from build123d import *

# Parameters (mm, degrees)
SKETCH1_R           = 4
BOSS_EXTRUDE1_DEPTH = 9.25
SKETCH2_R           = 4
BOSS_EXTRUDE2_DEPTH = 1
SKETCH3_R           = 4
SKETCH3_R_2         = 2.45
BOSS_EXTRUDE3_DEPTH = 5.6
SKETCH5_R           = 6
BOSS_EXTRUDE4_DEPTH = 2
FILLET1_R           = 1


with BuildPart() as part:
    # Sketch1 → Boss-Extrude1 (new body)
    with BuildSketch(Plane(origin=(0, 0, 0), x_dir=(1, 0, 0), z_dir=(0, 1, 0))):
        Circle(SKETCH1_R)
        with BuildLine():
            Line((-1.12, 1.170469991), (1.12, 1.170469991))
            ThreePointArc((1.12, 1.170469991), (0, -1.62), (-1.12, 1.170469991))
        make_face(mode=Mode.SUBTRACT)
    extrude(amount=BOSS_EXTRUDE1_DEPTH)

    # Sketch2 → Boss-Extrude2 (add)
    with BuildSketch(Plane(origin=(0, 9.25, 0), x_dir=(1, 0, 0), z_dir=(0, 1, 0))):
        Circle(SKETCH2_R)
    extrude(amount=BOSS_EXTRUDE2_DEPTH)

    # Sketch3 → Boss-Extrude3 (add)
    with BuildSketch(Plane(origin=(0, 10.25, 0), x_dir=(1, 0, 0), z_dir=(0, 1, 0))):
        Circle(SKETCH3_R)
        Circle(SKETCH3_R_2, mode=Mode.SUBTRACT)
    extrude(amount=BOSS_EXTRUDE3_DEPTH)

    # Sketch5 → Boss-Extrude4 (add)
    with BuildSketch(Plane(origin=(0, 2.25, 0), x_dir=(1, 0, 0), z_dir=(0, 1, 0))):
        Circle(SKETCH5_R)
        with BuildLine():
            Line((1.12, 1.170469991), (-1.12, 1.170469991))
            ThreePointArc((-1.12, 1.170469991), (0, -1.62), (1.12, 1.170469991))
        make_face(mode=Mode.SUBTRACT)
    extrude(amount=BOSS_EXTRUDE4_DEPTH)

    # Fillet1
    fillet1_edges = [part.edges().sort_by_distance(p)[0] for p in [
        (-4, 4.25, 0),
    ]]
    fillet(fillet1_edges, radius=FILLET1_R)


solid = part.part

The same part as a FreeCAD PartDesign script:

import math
import FreeCAD as App
import Part
import Sketcher

V = App.Vector
Q = App.Units.Quantity


def edges_at(feature, points):
    """Names of the edges that pass closest to the given points."""
    edges = feature.Shape.Edges
    near = lambda p: min(range(len(edges)), key=lambda i: edges[i].distToShape(Part.Vertex(*p))[0])
    return sorted({f"Edge{near(p) + 1}" for p in points})

doc = App.newDocument("Part")
params = doc.addObject("Spreadsheet::Sheet", "Params")
for row, (alias, value) in enumerate([
    ("sketch1_diameter", "8 mm"),
    ("sketch1_radius", "1.62 mm"),
    ("sketch1_width", "2.24 mm"),
    ("pad1_length", "9.25 mm"),
    ("sketch2_diameter", "8 mm"),
    ("pad2_length", "1 mm"),
    ("sketch3_diameter", "8 mm"),
    ("sketch3_diameter2", "4.9 mm"),
    ("pad3_length", "5.6 mm"),
    ("sketch4_diameter", "12 mm"),
    ("sketch4_radius", "1.62 mm"),
    ("sketch4_width", "2.24 mm"),
    ("pad4_length", "2 mm"),
    ("fillet_radius", "1 mm"),
], start=1):
    params.set(f"A{row}", alias)
    params.set(f"B{row}", "=" + value)
    params.setAlias(f"B{row}", alias)

body = doc.addObject("PartDesign::Body", "Body")

sketch1 = doc.addObject("Sketcher::SketchObject", "Sketch")
body.addObject(sketch1)
sketch1.AttachmentSupport = (doc.XZ_Plane, [""])
sketch1.MapMode = "FlatFace"
sketch1.addGeometry(Part.Circle(V(0, 0, 0), V(0, 0, 1), 4), False)
sketch1.addGeometry(Part.ArcOfCircle(Part.Circle(V(0, 0, 0), V(0, 0, 1), 1.6), math.radians(-46), math.radians(226)), False)
sketch1.addGeometry(Part.LineSegment(V(-1.1, -1.2, 0), V(1.1, -1.2, 0)), False)
sketch1.addConstraint(Sketcher.Constraint("Coincident", 1, 1, 2, 2))
sketch1.addConstraint(Sketcher.Constraint("Coincident", 2, 1, 1, 2))
sketch1.addConstraint(Sketcher.Constraint("Horizontal", 2))
sketch1.addConstraint(Sketcher.Constraint("Coincident", 0, 3, -1, 1))
sketch1.addConstraint(Sketcher.Constraint("Coincident", 1, 3, -1, 1))
sketch1.addConstraint(Sketcher.Constraint("Diameter", 0, Q("8 mm")))
sketch1.addConstraint(Sketcher.Constraint("Radius", 1, Q("1.62 mm")))
sketch1.addConstraint(Sketcher.Constraint("DistanceX", 2, 1, 2, 2, Q("2.24 mm")))
sketch1.setExpression("Constraints[5]", "Params.sketch1_diameter")
sketch1.setExpression("Constraints[6]", "Params.sketch1_radius")
sketch1.setExpression("Constraints[7]", "Params.sketch1_width")
pad1 = doc.addObject("PartDesign::Pad", "Pad")
body.addObject(pad1)
pad1.Profile = sketch1
pad1.setExpression("Length", "Params.pad1_length")
pad1.Reversed = True

sketch2 = doc.addObject("Sketcher::SketchObject", "Sketch001")
body.addObject(sketch2)
sketch2.AttachmentSupport = (doc.XZ_Plane, [""])
sketch2.MapMode = "FlatFace"
sketch2.AttachmentOffset = App.Placement(V(0, 0, -9.25), App.Rotation())
sketch2.addGeometry(Part.Circle(V(0, 0, 0), V(0, 0, 1), 4), False)
sketch2.addConstraint(Sketcher.Constraint("Coincident", 0, 3, -1, 1))
sketch2.addConstraint(Sketcher.Constraint("Diameter", 0, Q("8 mm")))
sketch2.setExpression("Constraints[1]", "Params.sketch2_diameter")
pad2 = doc.addObject("PartDesign::Pad", "Pad001")
body.addObject(pad2)
pad2.Profile = sketch2
pad2.setExpression("Length", "Params.pad2_length")
pad2.Reversed = True

sketch3 = doc.addObject("Sketcher::SketchObject", "Sketch002")
body.addObject(sketch3)
sketch3.AttachmentSupport = (doc.XZ_Plane, [""])
sketch3.MapMode = "FlatFace"
sketch3.AttachmentOffset = App.Placement(V(0, 0, -10.25), App.Rotation())
sketch3.addGeometry(Part.Circle(V(0, 0, 0), V(0, 0, 1), 4), False)
sketch3.addGeometry(Part.Circle(V(0, 0, 0), V(0, 0, 1), 2.5), False)
sketch3.addConstraint(Sketcher.Constraint("Coincident", 0, 3, -1, 1))
sketch3.addConstraint(Sketcher.Constraint("Coincident", 1, 3, -1, 1))
sketch3.addConstraint(Sketcher.Constraint("Diameter", 0, Q("8 mm")))
sketch3.addConstraint(Sketcher.Constraint("Diameter", 1, Q("4.9 mm")))
sketch3.setExpression("Constraints[2]", "Params.sketch3_diameter")
sketch3.setExpression("Constraints[3]", "Params.sketch3_diameter2")
pad3 = doc.addObject("PartDesign::Pad", "Pad002")
body.addObject(pad3)
pad3.Profile = sketch3
pad3.setExpression("Length", "Params.pad3_length")
pad3.Reversed = True

sketch4 = doc.addObject("Sketcher::SketchObject", "Sketch003")
body.addObject(sketch4)
sketch4.AttachmentSupport = (doc.XZ_Plane, [""])
sketch4.MapMode = "FlatFace"
sketch4.AttachmentOffset = App.Placement(V(0, 0, -2.25), App.Rotation())
sketch4.addGeometry(Part.Circle(V(0, 0, 0), V(0, 0, 1), 6), False)
sketch4.addGeometry(Part.LineSegment(V(-1.1, -1.2, 0), V(1.1, -1.2, 0)), False)
sketch4.addGeometry(Part.ArcOfCircle(Part.Circle(V(0, 0, 0), V(0, 0, 1), 1.6), math.radians(-46), math.radians(226)), False)
sketch4.addConstraint(Sketcher.Constraint("Coincident", 1, 1, 2, 2))
sketch4.addConstraint(Sketcher.Constraint("Coincident", 2, 1, 1, 2))
sketch4.addConstraint(Sketcher.Constraint("Horizontal", 1))
sketch4.addConstraint(Sketcher.Constraint("Coincident", 0, 3, -1, 1))
sketch4.addConstraint(Sketcher.Constraint("Coincident", 2, 3, -1, 1))
sketch4.addConstraint(Sketcher.Constraint("Diameter", 0, Q("12 mm")))
sketch4.addConstraint(Sketcher.Constraint("Radius", 2, Q("1.62 mm")))
sketch4.addConstraint(Sketcher.Constraint("DistanceX", 1, 1, 1, 2, Q("2.24 mm")))
sketch4.setExpression("Constraints[5]", "Params.sketch4_diameter")
sketch4.setExpression("Constraints[6]", "Params.sketch4_radius")
sketch4.setExpression("Constraints[7]", "Params.sketch4_width")
pad4 = doc.addObject("PartDesign::Pad", "Pad003")
body.addObject(pad4)
pad4.Profile = sketch4
pad4.setExpression("Length", "Params.pad4_length")
pad4.Reversed = True
doc.recompute()

fillet = doc.addObject("PartDesign::Fillet", "Fillet")
body.addObject(fillet)
fillet.Base = (pad4, edges_at(pad4, [(-4, 4.25, 0)]))
fillet.setExpression("Radius", "Params.fillet_radius")

doc.recompute()
